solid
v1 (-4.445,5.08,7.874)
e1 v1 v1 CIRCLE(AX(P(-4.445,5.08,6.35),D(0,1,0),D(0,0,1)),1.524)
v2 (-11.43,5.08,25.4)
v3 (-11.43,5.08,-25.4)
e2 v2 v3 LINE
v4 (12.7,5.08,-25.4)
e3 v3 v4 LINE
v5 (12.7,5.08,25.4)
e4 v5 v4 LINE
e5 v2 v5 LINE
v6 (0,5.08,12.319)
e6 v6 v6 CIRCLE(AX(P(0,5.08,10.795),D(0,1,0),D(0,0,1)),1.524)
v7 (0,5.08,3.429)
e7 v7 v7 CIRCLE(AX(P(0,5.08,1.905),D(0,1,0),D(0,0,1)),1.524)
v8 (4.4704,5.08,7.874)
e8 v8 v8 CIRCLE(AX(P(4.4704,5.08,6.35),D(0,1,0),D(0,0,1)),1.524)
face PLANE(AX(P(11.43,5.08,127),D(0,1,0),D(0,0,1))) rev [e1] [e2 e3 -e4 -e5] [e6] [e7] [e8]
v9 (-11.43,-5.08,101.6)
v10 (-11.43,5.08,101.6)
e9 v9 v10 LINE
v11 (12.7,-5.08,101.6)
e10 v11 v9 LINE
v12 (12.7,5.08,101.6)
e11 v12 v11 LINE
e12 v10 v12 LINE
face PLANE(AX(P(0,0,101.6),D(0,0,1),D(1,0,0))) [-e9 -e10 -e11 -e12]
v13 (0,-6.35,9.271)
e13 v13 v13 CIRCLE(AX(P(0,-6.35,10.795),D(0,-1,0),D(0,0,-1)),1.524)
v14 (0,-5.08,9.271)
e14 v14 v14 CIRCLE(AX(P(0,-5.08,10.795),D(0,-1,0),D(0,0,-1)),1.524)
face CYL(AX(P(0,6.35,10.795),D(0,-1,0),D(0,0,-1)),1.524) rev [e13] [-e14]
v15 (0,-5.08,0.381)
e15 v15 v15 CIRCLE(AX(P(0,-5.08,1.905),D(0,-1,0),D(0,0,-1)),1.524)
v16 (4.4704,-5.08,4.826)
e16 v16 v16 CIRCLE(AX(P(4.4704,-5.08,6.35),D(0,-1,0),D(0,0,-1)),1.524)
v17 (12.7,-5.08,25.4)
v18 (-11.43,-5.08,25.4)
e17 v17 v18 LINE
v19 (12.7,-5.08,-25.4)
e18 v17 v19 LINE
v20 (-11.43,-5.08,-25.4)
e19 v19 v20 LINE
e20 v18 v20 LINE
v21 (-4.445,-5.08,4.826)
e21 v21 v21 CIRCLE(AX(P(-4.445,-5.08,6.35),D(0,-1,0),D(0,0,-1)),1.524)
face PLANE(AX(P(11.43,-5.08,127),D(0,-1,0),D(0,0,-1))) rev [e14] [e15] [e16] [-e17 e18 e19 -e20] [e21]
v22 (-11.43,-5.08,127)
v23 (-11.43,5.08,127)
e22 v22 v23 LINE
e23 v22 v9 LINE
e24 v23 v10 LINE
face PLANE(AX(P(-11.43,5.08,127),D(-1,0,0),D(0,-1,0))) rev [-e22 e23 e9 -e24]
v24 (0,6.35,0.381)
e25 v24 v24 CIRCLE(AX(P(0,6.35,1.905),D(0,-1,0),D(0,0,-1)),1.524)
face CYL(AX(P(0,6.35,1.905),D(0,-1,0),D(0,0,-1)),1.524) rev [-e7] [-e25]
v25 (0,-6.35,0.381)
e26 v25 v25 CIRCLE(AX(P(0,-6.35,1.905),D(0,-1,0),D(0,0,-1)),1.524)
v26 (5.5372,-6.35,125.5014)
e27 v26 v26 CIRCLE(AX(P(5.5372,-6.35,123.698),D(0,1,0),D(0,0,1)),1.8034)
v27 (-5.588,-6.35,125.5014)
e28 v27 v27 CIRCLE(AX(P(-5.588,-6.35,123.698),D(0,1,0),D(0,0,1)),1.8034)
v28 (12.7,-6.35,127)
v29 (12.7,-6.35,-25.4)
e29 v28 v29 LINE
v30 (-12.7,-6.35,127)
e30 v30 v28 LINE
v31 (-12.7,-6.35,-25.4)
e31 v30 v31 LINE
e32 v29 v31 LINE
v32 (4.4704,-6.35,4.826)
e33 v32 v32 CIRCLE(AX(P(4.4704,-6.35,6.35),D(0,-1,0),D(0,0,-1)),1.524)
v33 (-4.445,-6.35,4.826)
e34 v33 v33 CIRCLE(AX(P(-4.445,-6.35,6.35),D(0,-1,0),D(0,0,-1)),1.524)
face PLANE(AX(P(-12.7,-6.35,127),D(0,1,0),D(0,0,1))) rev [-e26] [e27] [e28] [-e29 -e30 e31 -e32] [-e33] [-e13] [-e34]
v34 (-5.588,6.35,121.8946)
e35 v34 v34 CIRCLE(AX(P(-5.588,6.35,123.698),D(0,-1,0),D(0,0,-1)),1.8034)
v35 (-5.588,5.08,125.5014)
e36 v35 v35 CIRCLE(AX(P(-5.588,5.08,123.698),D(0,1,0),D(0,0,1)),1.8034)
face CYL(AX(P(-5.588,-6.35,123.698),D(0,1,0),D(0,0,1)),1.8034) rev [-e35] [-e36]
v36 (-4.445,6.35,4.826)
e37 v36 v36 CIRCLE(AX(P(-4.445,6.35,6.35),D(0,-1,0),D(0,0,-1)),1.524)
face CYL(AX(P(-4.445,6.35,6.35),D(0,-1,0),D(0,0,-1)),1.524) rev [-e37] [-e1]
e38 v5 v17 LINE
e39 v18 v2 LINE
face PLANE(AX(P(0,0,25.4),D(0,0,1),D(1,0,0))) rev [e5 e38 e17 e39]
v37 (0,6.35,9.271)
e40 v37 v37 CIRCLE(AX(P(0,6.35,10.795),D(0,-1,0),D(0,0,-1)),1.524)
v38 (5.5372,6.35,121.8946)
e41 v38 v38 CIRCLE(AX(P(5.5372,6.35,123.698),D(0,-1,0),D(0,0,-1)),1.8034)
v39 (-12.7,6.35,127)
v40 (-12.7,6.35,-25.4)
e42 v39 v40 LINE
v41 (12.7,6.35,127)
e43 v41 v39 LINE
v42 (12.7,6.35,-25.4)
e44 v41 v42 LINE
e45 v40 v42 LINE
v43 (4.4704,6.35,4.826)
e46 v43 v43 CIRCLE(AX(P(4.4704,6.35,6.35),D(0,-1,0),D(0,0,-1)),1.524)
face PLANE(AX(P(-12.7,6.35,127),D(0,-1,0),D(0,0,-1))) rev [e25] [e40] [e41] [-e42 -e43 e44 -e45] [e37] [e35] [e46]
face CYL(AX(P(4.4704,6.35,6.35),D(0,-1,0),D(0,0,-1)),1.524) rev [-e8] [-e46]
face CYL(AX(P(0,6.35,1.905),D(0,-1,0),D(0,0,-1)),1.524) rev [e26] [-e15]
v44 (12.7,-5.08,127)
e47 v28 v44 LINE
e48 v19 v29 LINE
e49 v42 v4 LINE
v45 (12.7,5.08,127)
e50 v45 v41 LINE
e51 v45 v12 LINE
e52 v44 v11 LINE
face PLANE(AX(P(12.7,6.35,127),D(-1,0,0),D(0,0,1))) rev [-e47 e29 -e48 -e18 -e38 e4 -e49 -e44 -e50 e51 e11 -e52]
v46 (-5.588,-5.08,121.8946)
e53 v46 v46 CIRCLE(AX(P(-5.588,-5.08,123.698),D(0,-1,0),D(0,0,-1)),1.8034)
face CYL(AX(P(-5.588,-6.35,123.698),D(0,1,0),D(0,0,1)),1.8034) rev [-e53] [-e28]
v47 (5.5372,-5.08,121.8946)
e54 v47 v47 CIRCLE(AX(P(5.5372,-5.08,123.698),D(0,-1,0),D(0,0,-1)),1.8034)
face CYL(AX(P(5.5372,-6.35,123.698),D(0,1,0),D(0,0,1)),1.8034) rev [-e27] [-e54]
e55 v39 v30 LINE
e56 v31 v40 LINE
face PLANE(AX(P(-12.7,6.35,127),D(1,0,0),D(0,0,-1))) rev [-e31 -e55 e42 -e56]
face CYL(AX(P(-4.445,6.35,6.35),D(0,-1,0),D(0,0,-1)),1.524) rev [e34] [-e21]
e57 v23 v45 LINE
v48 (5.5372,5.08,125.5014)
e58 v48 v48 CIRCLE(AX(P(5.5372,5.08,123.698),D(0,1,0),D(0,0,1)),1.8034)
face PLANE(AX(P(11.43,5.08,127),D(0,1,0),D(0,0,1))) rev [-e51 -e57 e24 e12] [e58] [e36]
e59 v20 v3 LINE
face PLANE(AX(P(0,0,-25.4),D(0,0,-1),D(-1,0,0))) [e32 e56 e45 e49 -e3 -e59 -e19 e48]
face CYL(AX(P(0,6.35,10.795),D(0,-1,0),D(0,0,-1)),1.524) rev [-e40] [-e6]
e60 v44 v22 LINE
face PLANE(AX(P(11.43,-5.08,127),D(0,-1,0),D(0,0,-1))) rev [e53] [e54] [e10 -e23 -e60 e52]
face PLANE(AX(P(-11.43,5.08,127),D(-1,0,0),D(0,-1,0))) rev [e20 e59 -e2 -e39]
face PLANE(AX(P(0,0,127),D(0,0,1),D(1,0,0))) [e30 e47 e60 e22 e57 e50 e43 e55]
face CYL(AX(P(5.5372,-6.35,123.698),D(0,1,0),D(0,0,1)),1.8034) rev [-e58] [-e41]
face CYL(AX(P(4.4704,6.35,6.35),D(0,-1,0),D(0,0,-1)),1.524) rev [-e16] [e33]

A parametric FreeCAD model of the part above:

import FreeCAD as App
import Part
import Sketcher

V = App.Vector
Q = App.Units.Quantity


def add_polygon(sketch, points):
    """Adds a closed chain of lines whose ends are joined by coincident constraints."""
    first, n = sketch.GeometryCount, len(points)
    for a, b in zip(points, points[1:] + points[:1]):
        sketch.addGeometry(Part.LineSegment(App.Vector(*a, 0), App.Vector(*b, 0)), False)
    for i in range(n):
        sketch.addConstraint(Sketcher.Constraint("Coincident", first + i, 2, first + (i + 1) % n, 1))

doc = App.newDocument("Part")
body = doc.addObject("PartDesign::Body", "Body")

sketch1 = body.newObject("Sketcher::SketchObject", "Sketch")
sketch1.AttachmentSupport = (doc.getObject("XY_Plane"), [""])
sketch1.MapMode = "FlatFace"
add_polygon(sketch1, [(-12.7, 6.35), (-12.7, -6.35), (12.7, -6.35), (12.7, 6.35)])
sketch1.addConstraint(Sketcher.Constraint("Vertical", 0))
sketch1.addConstraint(Sketcher.Constraint("Horizontal", 1))
sketch1.addConstraint(Sketcher.Constraint("Vertical", 2))
sketch1.addConstraint(Sketcher.Constraint("Horizontal", 3))
sketch1.addConstraint(Sketcher.Constraint("Symmetric", 0, 2, 2, 2, -1, 1))
sketch1.addConstraint(Sketcher.Constraint("DistanceX", 1, 1, 1, 2, Q("1 in")))
sketch1.addConstraint(Sketcher.Constraint("DistanceY", 0, 2, 0, 1, Q("0.5 in")))
pad1 = body.newObject("PartDesign::Pad", "Pad")
pad1.Profile = sketch1
pad1.Length = Q("5 in")

sketch2 = body.newObject("Sketcher::SketchObject", "Sketch001")
sketch2.AttachmentSupport = (doc.getObject("XY_Plane"), [""])
sketch2.MapMode = "FlatFace"
add_polygon(sketch2, [(11.43, 5.08), (11.43, -5.08), (-11.43, -5.08), (-11.43, 5.08)])
sketch2.addConstraint(Sketcher.Constraint("Vertical", 0))
sketch2.addConstraint(Sketcher.Constraint("Horizontal", 1))
sketch2.addConstraint(Sketcher.Constraint("Vertical", 2))
sketch2.addConstraint(Sketcher.Constraint("Horizontal", 3))
sketch2.addConstraint(Sketcher.Constraint("Symmetric", 0, 2, 2, 2, -1, 1))
sketch2.addConstraint(Sketcher.Constraint("DistanceX", 1, 2, 1, 1, Q("0.9 in")))
sketch2.addConstraint(Sketcher.Constraint("DistanceY", 0, 2, 0, 1, Q("0.4 in")))
pocket1 = body.newObject("PartDesign::Pocket", "Pocket")
pocket1.Profile = sketch2
pocket1.Type = "ThroughAll"
pocket1.Reversed = True

sketch3 = body.newObject("Sketcher::SketchObject", "Sketch002")
sketch3.AttachmentSupport = (doc.getObject("XZ_Plane"), [""])
sketch3.MapMode = "FlatFace"
sketch3.AttachmentOffset = App.Placement(V(0, 0, -0.25 * 25.4), App.Rotation())
sketch3.addGeometry(Part.Circle(V(-5.588, 123.698, 0), V(0, 0, 1), 1.8034), False)
sketch3.addGeometry(Part.Circle(V(5.5372, 123.698, 0), V(0, 0, 1), 1.8034), False)
sketch3.addConstraint(Sketcher.Constraint("Equal", 0, 1))
sketch3.addConstraint(Sketcher.Constraint("Horizontal", 0, 3, 1, 3))
sketch3.addConstraint(Sketcher.Constraint("Diameter", 0, Q("0.142 in")))
sketch3.addConstraint(Sketcher.Constraint("DistanceX", 0, 3, -1, 1, Q("0.22 in")))
sketch3.addConstraint(Sketcher.Constraint("DistanceY", -1, 1, 0, 3, Q("4.87 in")))
sketch3.addConstraint(Sketcher.Constraint("DistanceX", -1, 1, 1, 3, Q("0.218 in")))
pocket2 = body.newObject("PartDesign::Pocket", "Pocket001")
pocket2.Profile = sketch3
pocket2.Type = "ThroughAll"
pocket2.Midplane = True

sketch4 = body.newObject("Sketcher::SketchObject", "Sketch003")
sketch4.AttachmentSupport = (doc.getObject("XZ_Plane"), [""])
sketch4.MapMode = "FlatFace"
sketch4.AttachmentOffset = App.Placement(V(0, 0, 0.25 * 25.4), App.Rotation())
sketch4.addGeometry(Part.Circle(V(-4.445, 6.35, 0), V(0, 0, 1), 1.524), False)
sketch4.addGeometry(Part.Circle(V(4.4704, 6.35, 0), V(0, 0, 1), 1.524), False)
sketch4.addGeometry(Part.Circle(V(0, 1.905, 0), V(0, 0, 1), 1.524), False)
sketch4.addGeometry(Part.Circle(V(0, 10.795, 0), V(0, 0, 1), 1.524), False)
sketch4.addConstraint(Sketcher.Constraint("Equal", 0, 1))
sketch4.addConstraint(Sketcher.Constraint("Equal", 1, 2))
sketch4.addConstraint(Sketcher.Constraint("Equal", 2, 3))
sketch4.addConstraint(Sketcher.Constraint("PointOnObject", 2, 3, -2))
sketch4.addConstraint(Sketcher.Constraint("PointOnObject", 3, 3, -2))
sketch4.addConstraint(Sketcher.Constraint("Horizontal", 0, 3, 1, 3))
sketch4.addConstraint(Sketcher.Constraint("Diameter", 0, Q("0.12 in")))
sketch4.addConstraint(Sketcher.Constraint("DistanceY", -1, 1, 0, 3, Q("0.25 in")))
sketch4.addConstraint(Sketcher.Constraint("DistanceY", 2, 3, 3, 3, Q("0.35 in")))
sketch4.addConstraint(Sketcher.Constraint("DistanceX", 0, 3, -1, 1, Q("0.175 in")))
sketch4.addConstraint(Sketcher.Constraint("DistanceX", -1, 1, 1, 3, Q("0.176 in")))
sketch4.addConstraint(Sketcher.Constraint("DistanceY", -1, 1, 2, 3, Q("0.075 in")))
pocket3 = body.newObject("PartDesign::Pocket", "Pocket002")
pocket3.Profile = sketch4
pocket3.Type = "ThroughAll"
pocket3.Midplane = True

sketch5 = body.newObject("Sketcher::SketchObject", "Sketch004")
sketch5.AttachmentSupport = (doc.getObject("XY_Plane"), [""])
sketch5.MapMode = "FlatFace"
add_polygon(sketch5, [(12.7, 6.35), (12.7, -6.35), (-12.7, -6.35), (-12.7, 6.35)])
add_polygon(sketch5, [(-11.43, -5.08), (11.43, -5.08), (11.43, 5.08), (-11.43, 5.08)])
sketch5.addConstraint(Sketcher.Constraint("Vertical", 0))
sketch5.addConstraint(Sketcher.Constraint("Horizontal", 1))
sketch5.addConstraint(Sketcher.Constraint("Vertical", 2))
sketch5.addConstraint(Sketcher.Constraint("Horizontal", 3))
sketch5.addConstraint(Sketcher.Constraint("Horizontal", 4))
sketch5.addConstraint(Sketcher.Constraint("Vertical", 5))
sketch5.addConstraint(Sketcher.Constraint("Horizontal", 6))
sketch5.addConstraint(Sketcher.Constraint("Vertical", 7))
sketch5.addConstraint(Sketcher.Constraint("Symmetric", 0, 2, 2, 2, -1, 1))
sketch5.addConstraint(Sketcher.Constraint("Symmetric", 4, 2, 6, 2, -1, 1))
sketch5.addConstraint(Sketcher.Constraint("DistanceX", 1, 2, 1, 1, Q("1 in")))
sketch5.addConstraint(Sketcher.Constraint("DistanceX", 4, 1, 4, 2, Q("0.9 in")))
sketch5.addConstraint(Sketcher.Constraint("DistanceY", 0, 2, 0, 1, Q("0.5 in")))
sketch5.addConstraint(Sketcher.Constraint("DistanceY", 5, 1, 5, 2, Q("0.4 in")))
pad2 = body.newObject("PartDesign::Pad", "Pad001")
pad2.Profile = sketch5
pad2.Length = Q("1 in")
pad2.Reversed = True

sketch6 = body.newObject("Sketcher::SketchObject", "Sketch005")
sketch6.AttachmentSupport = (doc.getObject("XY_Plane"), [""])
sketch6.MapMode = "FlatFace"
sketch6.AttachmentOffset = App.Placement(V(0, 0, -1 * 25.4), App.Rotation())
add_polygon(sketch6, [(12.7, 5.08), (12.7, -5.08), (11.43, -5.08), (11.43, 5.08)])
sketch6.addConstraint(Sketcher.Constraint("Vertical", 0))
sketch6.addConstraint(Sketcher.Constraint("Horizontal", 1))
sketch6.addConstraint(Sketcher.Constraint("Vertical", 2))
sketch6.addConstraint(Sketcher.Constraint("Horizontal", 3))
sketch6.addConstraint(Sketcher.Constraint("DistanceY", 0, 2, 0, 1, Q("0.4 in")))
sketch6.addConstraint(Sketcher.Constraint("DistanceX", 1, 2, 1, 1, Q("0.05 in")))
sketch6.addConstraint(Sketcher.Constraint("DistanceX", -1, 1, 0, 2, Q("0.5 in")))
sketch6.addConstraint(Sketcher.Constraint("DistanceY", 0, 2, -1, 1, Q("0.2 in")))
pocket4 = body.newObject("PartDesign::Pocket", "Pocket003")
pocket4.Profile = sketch6
pocket4.Type = "UpToFirst"
pocket4.Reversed = True

sketch7 = body.newObject("Sketcher::SketchObject", "Sketch006")
sketch7.AttachmentSupport = (doc.getObject("XY_Plane"), [""])
sketch7.MapMode = "FlatFace"
sketch7.AttachmentOffset = App.Placement(V(0, 0, 1 * 25.4), App.Rotation())
add_polygon(sketch7, [(12.7, 5.08), (12.7, -5.08), (-11.43, -5.08), (-11.43, 5.08)])
sketch7.addConstraint(Sketcher.Constraint("Vertical", 0))
sketch7.addConstraint(Sketcher.Constraint("Horizontal", 1))
sketch7.addConstraint(Sketcher.Constraint("Vertical", 2))
sketch7.addConstraint(Sketcher.Constraint("Horizontal", 3))
sketch7.addConstraint(Sketcher.Constraint("DistanceY", 0, 2, 0, 1, Q("0.4 in")))
sketch7.addConstraint(Sketcher.Constraint("DistanceX", 1, 2, 1, 1, Q("0.95 in")))
sketch7.addConstraint(Sketcher.Constraint("DistanceX", -1, 1, 0, 2, Q("0.5 in")))
sketch7.addConstraint(Sketcher.Constraint("DistanceY", 0, 2, -1, 1, Q("0.2 in")))
pad3 = body.newObject("PartDesign::Pad", "Pad002")
pad3.Profile = sketch7
pad3.Length = Q("3 in")

doc.recompute()
